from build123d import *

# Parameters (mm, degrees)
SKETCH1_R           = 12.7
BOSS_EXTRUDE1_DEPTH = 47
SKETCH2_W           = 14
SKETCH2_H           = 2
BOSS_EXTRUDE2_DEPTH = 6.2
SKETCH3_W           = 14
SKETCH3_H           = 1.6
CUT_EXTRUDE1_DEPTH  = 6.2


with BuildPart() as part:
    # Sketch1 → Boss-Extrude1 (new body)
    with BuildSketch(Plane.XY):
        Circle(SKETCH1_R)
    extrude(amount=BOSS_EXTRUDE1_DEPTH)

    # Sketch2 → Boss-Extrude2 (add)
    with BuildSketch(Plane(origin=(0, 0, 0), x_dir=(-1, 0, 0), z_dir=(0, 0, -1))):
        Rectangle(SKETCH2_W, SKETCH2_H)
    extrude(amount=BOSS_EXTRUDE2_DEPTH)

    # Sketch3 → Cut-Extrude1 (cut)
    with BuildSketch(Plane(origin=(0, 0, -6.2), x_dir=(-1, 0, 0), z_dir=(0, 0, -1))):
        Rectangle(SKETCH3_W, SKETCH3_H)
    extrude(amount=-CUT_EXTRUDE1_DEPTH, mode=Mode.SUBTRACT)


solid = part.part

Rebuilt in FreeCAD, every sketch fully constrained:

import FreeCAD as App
import Part
import Sketcher

V = App.Vector


def add_polygon(sketch, points):
    """Adds a closed chain of lines whose ends are joined by coincident constraints."""
    first, n = sketch.GeometryCount, len(points)
    for a, b in zip(points, points[1:] + points[:1]):
        sketch.addGeometry(Part.LineSegment(App.Vector(*a, 0), App.Vector(*b, 0)), False)
    for i in range(n):
        sketch.addConstraint(Sketcher.Constraint("Coincident", first + i, 2, first + (i + 1) % n, 1))

doc = App.newDocument("Part")
body = doc.addObject("PartDesign::Body", "Body")

sketch1 = body.newObject("Sketcher::SketchObject", "Sketch")
sketch1.AttachmentSupport = (doc.getObject("XY_Plane"), [""])
sketch1.MapMode = "FlatFace"
sketch1.addGeometry(Part.Circle(V(0, 0, 0), V(0, 0, 1), 13), False)
sketch1.addConstraint([
    Sketcher.Constraint("Coincident", 0, 3, -1, 1),
    Sketcher.Constraint("Diameter", 0, 25.4),
])
pad1 = body.newObject("PartDesign::Pad", "Pad")
pad1.Profile = sketch1
pad1.Length = 47

sketch2 = body.newObject("Sketcher::SketchObject", "Sketch001")
sketch2.AttachmentSupport = (doc.getObject("XY_Plane"), [""])
sketch2.MapMode = "FlatFace"
add_polygon(sketch2, [(7, 1), (7, -1), (-7, -1), (-7, 1)])
sketch2.addConstraint([
    Sketcher.Constraint("Vertical", 0),
    Sketcher.Constraint("Horizontal", 1),
    Sketcher.Constraint("Vertical", 2),
    Sketcher.Constraint("Horizontal", 3),
    Sketcher.Constraint("Symmetric", 0, 2, 2, 2, -1, 1),
    Sketcher.Constraint("DistanceX", 1, 2, 1, 1, 14.0),
    Sketcher.Constraint("DistanceY", 0, 2, 0, 1, 2.0),
])
pad2 = body.newObject("PartDesign::Pad", "Pad001")
pad2.Profile = sketch2
pad2.Length = 6.2
pad2.Reversed = True

sketch3 = body.newObject("Sketcher::SketchObject", "Sketch002")
sketch3.AttachmentSupport = (doc.getObject("XY_Plane"), [""])
sketch3.MapMode = "FlatFace"
sketch3.AttachmentOffset = App.Placement(V(0, 0, -6.2), App.Rotation())
add_polygon(sketch3, [(7, 0.8), (7, -0.8), (-7, -0.8), (-7, 0.8)])
sketch3.addConstraint([
    Sketcher.Constraint("Vertical", 0),
    Sketcher.Constraint("Horizontal", 1),
    Sketcher.Constraint("Vertical", 2),
    Sketcher.Constraint("Horizontal", 3),
    Sketcher.Constraint("Symmetric", 0, 2, 2, 2, -1, 1),
    Sketcher.Constraint("DistanceX", 1, 2, 1, 1, 14.0),
    Sketcher.Constraint("DistanceY", 0, 2, 0, 1, 1.6),
])
pocket1 = body.newObject("PartDesign::Pocket", "Pocket")
pocket1.Profile = sketch3
pocket1.Length = 6.2
pocket1.Reversed = True

doc.recompute()
